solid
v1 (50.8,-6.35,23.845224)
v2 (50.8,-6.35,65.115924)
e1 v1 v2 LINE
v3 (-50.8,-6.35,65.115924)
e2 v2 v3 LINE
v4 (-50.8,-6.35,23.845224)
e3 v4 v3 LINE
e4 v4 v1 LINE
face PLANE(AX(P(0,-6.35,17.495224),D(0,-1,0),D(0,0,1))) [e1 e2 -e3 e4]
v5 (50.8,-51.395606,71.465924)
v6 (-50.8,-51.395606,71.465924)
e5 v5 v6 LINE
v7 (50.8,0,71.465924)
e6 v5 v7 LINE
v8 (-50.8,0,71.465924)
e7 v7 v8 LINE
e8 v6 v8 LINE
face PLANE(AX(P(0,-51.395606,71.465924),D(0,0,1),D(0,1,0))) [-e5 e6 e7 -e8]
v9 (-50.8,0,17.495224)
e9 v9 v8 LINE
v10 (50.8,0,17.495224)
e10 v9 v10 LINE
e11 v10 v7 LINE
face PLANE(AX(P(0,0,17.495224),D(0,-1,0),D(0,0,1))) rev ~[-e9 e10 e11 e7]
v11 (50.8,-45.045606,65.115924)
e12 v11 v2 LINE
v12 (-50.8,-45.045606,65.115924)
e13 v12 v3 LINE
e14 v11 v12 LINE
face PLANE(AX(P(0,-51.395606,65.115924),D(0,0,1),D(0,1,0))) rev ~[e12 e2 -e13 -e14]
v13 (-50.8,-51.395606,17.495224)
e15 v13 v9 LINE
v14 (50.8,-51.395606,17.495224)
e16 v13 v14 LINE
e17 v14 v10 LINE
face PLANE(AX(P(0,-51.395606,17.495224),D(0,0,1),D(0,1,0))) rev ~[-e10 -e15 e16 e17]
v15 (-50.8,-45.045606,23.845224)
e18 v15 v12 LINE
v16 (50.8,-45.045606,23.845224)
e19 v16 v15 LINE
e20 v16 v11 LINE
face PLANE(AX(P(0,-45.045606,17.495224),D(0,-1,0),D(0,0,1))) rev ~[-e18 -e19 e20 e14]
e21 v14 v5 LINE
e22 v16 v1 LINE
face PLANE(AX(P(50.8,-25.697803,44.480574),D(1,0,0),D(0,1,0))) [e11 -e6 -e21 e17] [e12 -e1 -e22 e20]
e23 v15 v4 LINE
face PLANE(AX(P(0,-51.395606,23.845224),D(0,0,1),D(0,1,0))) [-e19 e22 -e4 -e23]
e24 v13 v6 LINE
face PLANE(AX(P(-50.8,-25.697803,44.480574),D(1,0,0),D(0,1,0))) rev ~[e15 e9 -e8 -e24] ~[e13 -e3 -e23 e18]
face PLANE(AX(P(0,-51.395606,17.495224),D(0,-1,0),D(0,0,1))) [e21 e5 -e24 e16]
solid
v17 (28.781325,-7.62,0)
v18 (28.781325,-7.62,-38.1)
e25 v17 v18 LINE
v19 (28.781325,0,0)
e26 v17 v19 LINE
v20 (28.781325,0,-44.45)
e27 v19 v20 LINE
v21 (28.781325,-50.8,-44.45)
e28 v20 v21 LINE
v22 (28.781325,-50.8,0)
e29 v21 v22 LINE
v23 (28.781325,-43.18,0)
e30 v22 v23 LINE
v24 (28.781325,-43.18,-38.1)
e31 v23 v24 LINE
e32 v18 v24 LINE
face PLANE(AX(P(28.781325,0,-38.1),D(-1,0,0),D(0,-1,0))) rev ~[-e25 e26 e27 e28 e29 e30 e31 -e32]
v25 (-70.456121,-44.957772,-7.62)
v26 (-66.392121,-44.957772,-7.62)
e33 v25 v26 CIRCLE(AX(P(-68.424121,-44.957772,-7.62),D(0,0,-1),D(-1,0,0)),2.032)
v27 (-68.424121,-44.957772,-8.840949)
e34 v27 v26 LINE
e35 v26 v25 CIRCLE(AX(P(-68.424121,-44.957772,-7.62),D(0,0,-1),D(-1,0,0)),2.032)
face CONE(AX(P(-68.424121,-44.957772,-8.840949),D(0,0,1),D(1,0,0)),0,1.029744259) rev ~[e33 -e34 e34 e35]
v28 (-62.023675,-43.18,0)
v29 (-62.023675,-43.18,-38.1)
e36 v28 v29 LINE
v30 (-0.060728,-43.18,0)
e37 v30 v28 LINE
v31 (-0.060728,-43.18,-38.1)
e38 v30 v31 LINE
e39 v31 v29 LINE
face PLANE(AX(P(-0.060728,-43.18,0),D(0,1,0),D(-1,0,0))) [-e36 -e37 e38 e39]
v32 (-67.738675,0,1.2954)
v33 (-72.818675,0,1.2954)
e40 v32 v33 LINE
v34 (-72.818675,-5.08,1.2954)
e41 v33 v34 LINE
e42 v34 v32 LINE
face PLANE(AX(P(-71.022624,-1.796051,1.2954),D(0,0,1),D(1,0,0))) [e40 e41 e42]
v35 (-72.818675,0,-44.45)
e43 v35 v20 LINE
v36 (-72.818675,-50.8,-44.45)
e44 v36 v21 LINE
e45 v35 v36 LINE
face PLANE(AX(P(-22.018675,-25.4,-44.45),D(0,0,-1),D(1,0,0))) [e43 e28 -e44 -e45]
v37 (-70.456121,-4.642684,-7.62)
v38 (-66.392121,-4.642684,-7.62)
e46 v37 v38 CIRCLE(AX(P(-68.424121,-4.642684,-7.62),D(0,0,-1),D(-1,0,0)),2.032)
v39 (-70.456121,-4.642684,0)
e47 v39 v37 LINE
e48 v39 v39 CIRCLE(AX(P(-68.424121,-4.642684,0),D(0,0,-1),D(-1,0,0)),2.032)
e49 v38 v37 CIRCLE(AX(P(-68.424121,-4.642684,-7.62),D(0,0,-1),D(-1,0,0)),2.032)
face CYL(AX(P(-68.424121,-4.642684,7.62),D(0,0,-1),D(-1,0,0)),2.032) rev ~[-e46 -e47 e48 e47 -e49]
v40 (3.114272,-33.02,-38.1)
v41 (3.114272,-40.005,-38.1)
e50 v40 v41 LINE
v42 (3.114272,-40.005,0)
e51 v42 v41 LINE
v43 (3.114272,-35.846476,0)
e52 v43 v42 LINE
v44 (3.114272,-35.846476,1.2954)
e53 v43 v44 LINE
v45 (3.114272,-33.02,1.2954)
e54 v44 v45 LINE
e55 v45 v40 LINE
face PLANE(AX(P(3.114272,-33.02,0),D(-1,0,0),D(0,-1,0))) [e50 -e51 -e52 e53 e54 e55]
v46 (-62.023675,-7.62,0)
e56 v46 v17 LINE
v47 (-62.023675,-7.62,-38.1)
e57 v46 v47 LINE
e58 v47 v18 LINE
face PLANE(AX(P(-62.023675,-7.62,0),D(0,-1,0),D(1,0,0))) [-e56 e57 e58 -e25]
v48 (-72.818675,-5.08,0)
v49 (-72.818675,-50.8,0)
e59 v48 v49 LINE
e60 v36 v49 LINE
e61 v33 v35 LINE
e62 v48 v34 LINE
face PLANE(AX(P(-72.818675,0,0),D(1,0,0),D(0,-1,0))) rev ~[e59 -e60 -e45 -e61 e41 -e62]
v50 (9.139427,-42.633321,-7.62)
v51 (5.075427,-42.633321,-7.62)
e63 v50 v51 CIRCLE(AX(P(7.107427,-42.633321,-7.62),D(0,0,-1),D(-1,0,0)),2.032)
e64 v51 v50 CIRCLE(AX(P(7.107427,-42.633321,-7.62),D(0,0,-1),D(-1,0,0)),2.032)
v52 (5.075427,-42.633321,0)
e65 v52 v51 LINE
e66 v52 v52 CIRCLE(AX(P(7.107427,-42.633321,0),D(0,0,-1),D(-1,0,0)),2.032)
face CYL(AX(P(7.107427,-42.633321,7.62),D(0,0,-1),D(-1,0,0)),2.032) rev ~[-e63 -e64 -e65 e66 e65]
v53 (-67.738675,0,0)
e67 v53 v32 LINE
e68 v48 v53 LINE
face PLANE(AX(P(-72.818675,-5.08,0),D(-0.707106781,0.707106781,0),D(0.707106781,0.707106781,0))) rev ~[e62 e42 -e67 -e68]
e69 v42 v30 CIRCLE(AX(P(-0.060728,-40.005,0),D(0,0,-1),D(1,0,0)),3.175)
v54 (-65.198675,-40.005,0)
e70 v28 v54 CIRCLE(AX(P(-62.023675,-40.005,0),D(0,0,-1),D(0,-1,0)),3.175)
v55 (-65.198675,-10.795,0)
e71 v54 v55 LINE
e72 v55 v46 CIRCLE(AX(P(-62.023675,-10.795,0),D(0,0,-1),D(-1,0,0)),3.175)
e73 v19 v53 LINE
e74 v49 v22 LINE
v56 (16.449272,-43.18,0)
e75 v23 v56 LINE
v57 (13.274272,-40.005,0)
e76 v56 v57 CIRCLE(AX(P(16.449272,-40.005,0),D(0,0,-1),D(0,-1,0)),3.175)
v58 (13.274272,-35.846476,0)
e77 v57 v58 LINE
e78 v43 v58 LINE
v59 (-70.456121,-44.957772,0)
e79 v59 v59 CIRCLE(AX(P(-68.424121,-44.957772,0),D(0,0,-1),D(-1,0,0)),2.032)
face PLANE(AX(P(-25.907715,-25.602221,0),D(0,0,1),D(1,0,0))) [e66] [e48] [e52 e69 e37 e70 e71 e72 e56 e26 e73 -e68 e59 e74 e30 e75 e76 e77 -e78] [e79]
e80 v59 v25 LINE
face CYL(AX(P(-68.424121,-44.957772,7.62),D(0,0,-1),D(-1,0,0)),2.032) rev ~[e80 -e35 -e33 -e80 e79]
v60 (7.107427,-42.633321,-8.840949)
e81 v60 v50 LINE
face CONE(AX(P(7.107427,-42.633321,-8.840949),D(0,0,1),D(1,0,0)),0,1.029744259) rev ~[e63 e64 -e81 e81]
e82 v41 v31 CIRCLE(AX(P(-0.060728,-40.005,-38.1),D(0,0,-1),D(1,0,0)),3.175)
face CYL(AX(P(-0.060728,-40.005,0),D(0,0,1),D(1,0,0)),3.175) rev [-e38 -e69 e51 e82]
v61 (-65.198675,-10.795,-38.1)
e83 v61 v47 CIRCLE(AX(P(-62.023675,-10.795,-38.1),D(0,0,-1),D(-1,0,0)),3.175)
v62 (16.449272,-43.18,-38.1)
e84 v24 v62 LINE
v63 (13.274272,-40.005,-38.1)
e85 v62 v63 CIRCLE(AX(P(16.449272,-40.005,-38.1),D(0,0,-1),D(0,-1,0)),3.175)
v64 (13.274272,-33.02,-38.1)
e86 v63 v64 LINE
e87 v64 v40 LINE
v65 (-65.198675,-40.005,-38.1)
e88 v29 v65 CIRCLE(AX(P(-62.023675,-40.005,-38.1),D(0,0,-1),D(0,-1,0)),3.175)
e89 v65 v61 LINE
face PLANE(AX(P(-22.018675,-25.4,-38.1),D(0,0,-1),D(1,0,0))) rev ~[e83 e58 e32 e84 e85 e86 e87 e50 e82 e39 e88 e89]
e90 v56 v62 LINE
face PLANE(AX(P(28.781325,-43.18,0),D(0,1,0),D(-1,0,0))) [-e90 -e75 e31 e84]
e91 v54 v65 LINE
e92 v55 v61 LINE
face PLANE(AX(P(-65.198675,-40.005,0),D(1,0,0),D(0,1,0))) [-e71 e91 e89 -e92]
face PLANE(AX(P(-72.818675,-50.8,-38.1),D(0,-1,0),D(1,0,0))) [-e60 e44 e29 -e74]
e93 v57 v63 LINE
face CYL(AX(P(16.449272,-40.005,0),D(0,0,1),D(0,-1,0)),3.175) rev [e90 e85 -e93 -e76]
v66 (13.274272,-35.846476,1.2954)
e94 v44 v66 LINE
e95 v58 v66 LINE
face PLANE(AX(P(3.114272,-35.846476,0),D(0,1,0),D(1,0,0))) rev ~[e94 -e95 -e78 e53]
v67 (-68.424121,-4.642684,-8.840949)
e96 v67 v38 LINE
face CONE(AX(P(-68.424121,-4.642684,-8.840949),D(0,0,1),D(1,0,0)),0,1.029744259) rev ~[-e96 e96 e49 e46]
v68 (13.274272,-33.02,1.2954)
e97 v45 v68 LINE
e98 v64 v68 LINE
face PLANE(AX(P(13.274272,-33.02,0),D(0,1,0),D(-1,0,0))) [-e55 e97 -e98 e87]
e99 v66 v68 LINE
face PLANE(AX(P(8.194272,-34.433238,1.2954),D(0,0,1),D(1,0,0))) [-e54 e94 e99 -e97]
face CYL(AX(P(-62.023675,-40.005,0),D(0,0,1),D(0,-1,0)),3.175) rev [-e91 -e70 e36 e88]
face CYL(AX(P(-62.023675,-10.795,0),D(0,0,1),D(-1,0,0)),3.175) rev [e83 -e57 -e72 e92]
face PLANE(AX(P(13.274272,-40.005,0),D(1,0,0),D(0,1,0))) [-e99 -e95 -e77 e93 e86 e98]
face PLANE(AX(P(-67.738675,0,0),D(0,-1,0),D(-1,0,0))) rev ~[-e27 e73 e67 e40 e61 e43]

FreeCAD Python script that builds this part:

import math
import FreeCAD as App
import Part
import Sketcher
Q = App.Units.Quantity


def faces_at(feature, points):
    """Names of the faces that lie closest to the given points."""
    faces = feature.Shape.Faces
    near = lambda p: min(range(len(faces)), key=lambda i: faces[i].distToShape(Part.Vertex(*p))[0])
    return sorted({f"Face{near(p) + 1}" for p in points})


def add_polygon(sketch, points):
    """Adds a closed chain of lines whose ends are joined by coincident constraints."""
    first, n = sketch.GeometryCount, len(points)
    for a, b in zip(points, points[1:] + points[:1]):
        sketch.addGeometry(Part.LineSegment(App.Vector(*a, 0), App.Vector(*b, 0)), False)
    for i in range(n):
        sketch.addConstraint(Sketcher.Constraint("Coincident", first + i, 2, first + (i + 1) % n, 1))

doc = App.newDocument("Part")
body = doc.addObject("PartDesign::Body", "Body")

# Sketch on XY plane
sketch1 = doc.addObject("Sketcher::SketchObject", "Sketch")
body.addObject(sketch1)
sketch1.AttachmentSupport = (doc.XY_Plane, [""])
sketch1.MapMode = "FlatFace"
sketch1.addGeometry(Part.LineSegment(App.Vector(-72.8, 0, 0), App.Vector(-72.8, -50.8, 0)), False)
sketch1.addGeometry(Part.LineSegment(App.Vector(-72.8, -50.8, 0), App.Vector(28.8, -50.8, 0)), False)
sketch1.addGeometry(Part.LineSegment(App.Vector(28.8, -50.8, 0), App.Vector(28.8, -43.2, 0)), False)
sketch1.addGeometry(Part.LineSegment(App.Vector(28.8, -43.2, 0), App.Vector(16.4, -43.2, 0)), False)
sketch1.addGeometry(Part.ArcOfCircle(Part.Circle(App.Vector(16.4, -40, 0), App.Vector(0, 0, 1), 3.2), math.radians(180), math.radians(270)), False)
sketch1.addGeometry(Part.LineSegment(App.Vector(13.3, -40, 0), App.Vector(13.3, -33, 0)), False)
sketch1.addGeometry(Part.LineSegment(App.Vector(13.3, -33, 0), App.Vector(3.1, -33, 0)), False)
sketch1.addGeometry(Part.LineSegment(App.Vector(3.1, -33, 0), App.Vector(3.1, -40, 0)), False)
sketch1.addGeometry(Part.ArcOfCircle(Part.Circle(App.Vector(-0.1, -40, 0), App.Vector(0, 0, 1), 3.2), math.radians(-90), math.radians(0)), False)
sketch1.addGeometry(Part.LineSegment(App.Vector(-0.1, -43.2, 0), App.Vector(-62, -43.2, 0)), False)
sketch1.addGeometry(Part.ArcOfCircle(Part.Circle(App.Vector(-62, -40, 0), App.Vector(0, 0, 1), 3.2), math.radians(180), math.radians(270)), False)
sketch1.addGeometry(Part.LineSegment(App.Vector(-65.2, -40, 0), App.Vector(-65.2, -10.8, 0)), False)
sketch1.addGeometry(Part.ArcOfCircle(Part.Circle(App.Vector(-62, -10.8, 0), App.Vector(0, 0, 1), 3.2), math.radians(90), math.radians(180)), False)
sketch1.addGeometry(Part.LineSegment(App.Vector(-62, -7.6, 0), App.Vector(28.8, -7.6, 0)), False)
sketch1.addGeometry(Part.LineSegment(App.Vector(28.8, -7.6, 0), App.Vector(28.8, 0, 0)), False)
sketch1.addGeometry(Part.LineSegment(App.Vector(28.8, 0, 0), App.Vector(-72.8, 0, 0)), False)
sketch1.addConstraint(Sketcher.Constraint("Coincident", 0, 2, 1, 1))
sketch1.addConstraint(Sketcher.Constraint("Coincident", 1, 2, 2, 1))
sketch1.addConstraint(Sketcher.Constraint("Coincident", 2, 2, 3, 1))
sketch1.addConstraint(Sketcher.Constraint("Tangent", 3, 2, 4, 2))
sketch1.addConstraint(Sketcher.Constraint("Tangent", 4, 1, 5, 1))
sketch1.addConstraint(Sketcher.Constraint("Coincident", 5, 2, 6, 1))
sketch1.addConstraint(Sketcher.Constraint("Coincident", 6, 2, 7, 1))
sketch1.addConstraint(Sketcher.Constraint("Tangent", 7, 2, 8, 2))
sketch1.addConstraint(Sketcher.Constraint("Tangent", 8, 1, 9, 1))
sketch1.addConstraint(Sketcher.Constraint("Tangent", 9, 2, 10, 2))
sketch1.addConstraint(Sketcher.Constraint("Tangent", 10, 1, 11, 1))
sketch1.addConstraint(Sketcher.Constraint("Tangent", 11, 2, 12, 2))
sketch1.addConstraint(Sketcher.Constraint("Tangent", 12, 1, 13, 1))
sketch1.addConstraint(Sketcher.Constraint("Coincident", 13, 2, 14, 1))
sketch1.addConstraint(Sketcher.Constraint("Coincident", 14, 2, 15, 1))
sketch1.addConstraint(Sketcher.Constraint("Coincident", 15, 2, 0, 1))
sketch1.addConstraint(Sketcher.Constraint("Vertical", 0))
sketch1.addConstraint(Sketcher.Constraint("Horizontal", 1))
sketch1.addConstraint(Sketcher.Constraint("Vertical", 2))
sketch1.addConstraint(Sketcher.Constraint("Horizontal", 3))
sketch1.addConstraint(Sketcher.Constraint("Vertical", 5))
sketch1.addConstraint(Sketcher.Constraint("Horizontal", 6))
sketch1.addConstraint(Sketcher.Constraint("Vertical", 7))
sketch1.addConstraint(Sketcher.Constraint("Horizontal", 9))
sketch1.addConstraint(Sketcher.Constraint("Vertical", 11))
sketch1.addConstraint(Sketcher.Constraint("Horizontal", 13))
sketch1.addConstraint(Sketcher.Constraint("Vertical", 14))
sketch1.addConstraint(Sketcher.Constraint("Horizontal", 15))
sketch1.addConstraint(Sketcher.Constraint("Equal", 4, 8))
sketch1.addConstraint(Sketcher.Constraint("Equal", 8, 10))
sketch1.addConstraint(Sketcher.Constraint("Equal", 10, 12))
sketch1.addConstraint(Sketcher.Constraint("PointOnObject", 14, 2, -1))
sketch1.addConstraint(Sketcher.Constraint("Horizontal", 4, 3, 8, 3))
sketch1.addConstraint(Sketcher.Constraint("Vertical", 2, 2, 13, 2))
sketch1.addConstraint(Sketcher.Constraint("Equal", 2, 14))
sketch1.addConstraint(Sketcher.Constraint("DistanceX", 1, 1, 1, 2, Q("4 in")))
sketch1.addConstraint(Sketcher.Constraint("DistanceY", 0, 2, 0, 1, Q("2 in")))
sketch1.addConstraint(Sketcher.Constraint("DistanceX", 6, 2, 6, 1, Q("0.4 in")))
sketch1.addConstraint(Sketcher.Constraint("DistanceY", 2, 1, 2, 2, Q("0.3 in")))
sketch1.addConstraint(Sketcher.Constraint("Radius", 4, Q("0.125 in")))
sketch1.addConstraint(Sketcher.Constraint("DistanceY", 5, 2, 13, 2, Q("1 in")))
sketch1.addConstraint(Sketcher.Constraint("DistanceX", 0, 2, 10, 1, Q("0.3 in")))
sketch1.addConstraint(Sketcher.Constraint("DistanceX", 3, 2, 3, 1, Q("12.332053 mm")))
sketch1.addConstraint(Sketcher.Constraint("DistanceX", -1, 1, 4, 3, Q("16.449272 mm")))
pad1 = doc.addObject("PartDesign::Pad", "Pad")
body.addObject(pad1)
pad1.Profile = sketch1
pad1.Length = Q("1.5 in")
pad1.Reversed = True

# Sketch on XY plane
sketch2 = doc.addObject("Sketcher::SketchObject", "Sketch001")
body.addObject(sketch2)
sketch2.AttachmentSupport = (doc.XY_Plane, [""])
sketch2.MapMode = "FlatFace"
sketch2.AttachmentOffset = App.Placement(App.Vector(0, 0, -1.5 * 25.4), App.Rotation())
add_polygon(sketch2, [(-73, -51), (-73, 0), (29, 0), (29, -51)])  # lines 0-3
sketch2.addConstraint(Sketcher.Constraint("Vertical", 0))
sketch2.addConstraint(Sketcher.Constraint("Horizontal", 1))
sketch2.addConstraint(Sketcher.Constraint("Vertical", 2))
sketch2.addConstraint(Sketcher.Constraint("Horizontal", 3))
sketch2.addConstraint(Sketcher.Constraint("PointOnObject", 0, 2, -1))
sketch2.addConstraint(Sketcher.Constraint("DistanceX", 1, 1, 1, 2, Q("4 in")))
sketch2.addConstraint(Sketcher.Constraint("DistanceY", 0, 1, 0, 2, Q("2 in")))
sketch2.addConstraint(Sketcher.Constraint("DistanceX", 0, 2, -1, 1, Q("72.818675 mm")))
pad2 = doc.addObject("PartDesign::Pad", "Pad001")
body.addObject(pad2)
pad2.Profile = sketch2
pad2.Length = Q("0.25 in")
pad2.Reversed = True

# Sketch on XY plane
sketch3 = doc.addObject("Sketcher::SketchObject", "Sketch002")
body.addObject(sketch3)
sketch3.AttachmentSupport = (doc.XY_Plane, [""])
sketch3.MapMode = "FlatFace"
add_polygon(sketch3, [(-72.8, 0), (-72.8, -5.1), (-67.7, 0)])  # lines 0-2
add_polygon(sketch3, [(3.1, -33), (3.1, -35.8), (13.3, -35.8), (13.3, -33)])  # lines 3-6
sketch3.addConstraint(Sketcher.Constraint("Vertical", 0))
sketch3.addConstraint(Sketcher.Constraint("Horizontal", 2))
sketch3.addConstraint(Sketcher.Constraint("Vertical", 3))
sketch3.addConstraint(Sketcher.Constraint("Horizontal", 4))
sketch3.addConstraint(Sketcher.Constraint("Vertical", 5))
sketch3.addConstraint(Sketcher.Constraint("Horizontal", 6))
sketch3.addConstraint(Sketcher.Constraint("PointOnObject", 1, 2, -1))
sketch3.addConstraint(Sketcher.Constraint("Equal", 2, 0))
sketch3.addConstraint(Sketcher.Constraint("DistanceX", 2, 2, 2, 1, Q("0.2 in")))
sketch3.addConstraint(Sketcher.Constraint("DistanceX", 4, 1, 4, 2, Q("0.4 in")))
sketch3.addConstraint(Sketcher.Constraint("DistanceY", 5, 2, -1, 1, Q("1.3 in")))
sketch3.addConstraint(Sketcher.Constraint("DistanceY", 3, 2, 3, 1, Q("2.826476 mm")))
sketch3.addConstraint(Sketcher.Constraint("DistanceX", 0, 2, -1, 1, Q("72.818675 mm")))
sketch3.addConstraint(Sketcher.Constraint("DistanceX", -1, 1, 3, 2, Q("3.114272 mm")))
pad3 = doc.addObject("PartDesign::Pad", "Pad002")
body.addObject(pad3)
pad3.Profile = sketch3
pad3.Length = Q("0.051 in")

# Sketch on XY plane
sketch4 = doc.addObject("Sketcher::SketchObject", "Sketch003")
body.addObject(sketch4)
sketch4.AttachmentSupport = (doc.XY_Plane, [""])
sketch4.MapMode = "FlatFace"
sketch4.addGeometry(Part.Circle(App.Vector(-68.4, -4.6, 0), App.Vector(0, 0, 1), 2), False)
sketch4.addGeometry(Part.Circle(App.Vector(-68.4, -45, 0), App.Vector(0, 0, 1), 2), False)
sketch4.addGeometry(Part.Circle(App.Vector(7.1, -42.6, 0), App.Vector(0, 0, 1), 2), False)
sketch4.addConstraint(Sketcher.Constraint("Equal", 0, 1))
sketch4.addConstraint(Sketcher.Constraint("Equal", 1, 2))
sketch4.addConstraint(Sketcher.Constraint("Vertical", 0, 3, 1, 3))
sketch4.addConstraint(Sketcher.Constraint("Diameter", 0, Q("0.16 in")))
sketch4.addConstraint(Sketcher.Constraint("DistanceX", 0, 3, -1, 1, Q("68.424121 mm")))
sketch4.addConstraint(Sketcher.Constraint("DistanceY", 1, 3, -1, 1, Q("44.957772 mm")))
sketch4.addConstraint(Sketcher.Constraint("DistanceY", 2, 3, -1, 1, Q("42.633321 mm")))
sketch4.addConstraint(Sketcher.Constraint("DistanceY", 1, 3, 0, 3, Q("40.315088 mm")))
sketch4.addConstraint(Sketcher.Constraint("DistanceX", -1, 1, 2, 3, Q("7.107427 mm")))
doc.recompute()
hole = doc.addObject("PartDesign::Hole", "Hole")
body.addObject(hole)
hole.Profile = sketch4
hole.ThreadType = "None"
hole.Diameter = Q("0.16 in")
hole.DepthType = "Dimension"
hole.Depth = Q("0.3 in")
hole.DrillPoint = "Angled"
hole.DrillPointAngle = 118
body2 = doc.addObject("PartDesign::Body", "Body001")

# Sketch on YZ plane
sketch5 = doc.addObject("Sketcher::SketchObject", "Sketch004")
body2.addObject(sketch5)
sketch5.AttachmentSupport = (doc.getObject("YZ_Plane001"), [""])
sketch5.MapMode = "FlatFace"
add_polygon(sketch5, [(-51, 71), (-51, 17), (0, 17), (0, 71)])  # lines 0-3
sketch5.addConstraint(Sketcher.Constraint("Vertical", 0))
sketch5.addConstraint(Sketcher.Constraint("Horizontal", 1))
sketch5.addConstraint(Sketcher.Constraint("Vertical", 2))
sketch5.addConstraint(Sketcher.Constraint("Horizontal", 3))
sketch5.addConstraint(Sketcher.Constraint("PointOnObject", 1, 2, -2))
sketch5.addConstraint(Sketcher.Constraint("DistanceY", 0, 2, 0, 1, Q("53.9707 mm")))
sketch5.addConstraint(Sketcher.Constraint("DistanceX", 1, 1, 1, 2, Q("51.395606 mm")))
sketch5.addConstraint(Sketcher.Constraint("DistanceY", -1, 1, 0, 2, Q("17.495224 mm")))
pad4 = doc.addObject("PartDesign::Pad", "Pad003")
body2.addObject(pad4)
pad4.Profile = sketch5
pad4.Type = "TwoLengths"
pad4.Length = Q("2 in")
pad4.Length2 = Q("2 in")
pad4.Reversed = True
doc.recompute()

thickness = doc.addObject("PartDesign::Thickness", "Thickness")
body2.addObject(thickness)
thickness.Base = (pad4, faces_at(pad4, [(50.8, -25.698, 44.481), (-50.8, -25.698, 44.481)]))
thickness.Value = Q("0.25 in")
thickness.Reversed = True
thickness.Join = "Arc"

doc.recompute()
